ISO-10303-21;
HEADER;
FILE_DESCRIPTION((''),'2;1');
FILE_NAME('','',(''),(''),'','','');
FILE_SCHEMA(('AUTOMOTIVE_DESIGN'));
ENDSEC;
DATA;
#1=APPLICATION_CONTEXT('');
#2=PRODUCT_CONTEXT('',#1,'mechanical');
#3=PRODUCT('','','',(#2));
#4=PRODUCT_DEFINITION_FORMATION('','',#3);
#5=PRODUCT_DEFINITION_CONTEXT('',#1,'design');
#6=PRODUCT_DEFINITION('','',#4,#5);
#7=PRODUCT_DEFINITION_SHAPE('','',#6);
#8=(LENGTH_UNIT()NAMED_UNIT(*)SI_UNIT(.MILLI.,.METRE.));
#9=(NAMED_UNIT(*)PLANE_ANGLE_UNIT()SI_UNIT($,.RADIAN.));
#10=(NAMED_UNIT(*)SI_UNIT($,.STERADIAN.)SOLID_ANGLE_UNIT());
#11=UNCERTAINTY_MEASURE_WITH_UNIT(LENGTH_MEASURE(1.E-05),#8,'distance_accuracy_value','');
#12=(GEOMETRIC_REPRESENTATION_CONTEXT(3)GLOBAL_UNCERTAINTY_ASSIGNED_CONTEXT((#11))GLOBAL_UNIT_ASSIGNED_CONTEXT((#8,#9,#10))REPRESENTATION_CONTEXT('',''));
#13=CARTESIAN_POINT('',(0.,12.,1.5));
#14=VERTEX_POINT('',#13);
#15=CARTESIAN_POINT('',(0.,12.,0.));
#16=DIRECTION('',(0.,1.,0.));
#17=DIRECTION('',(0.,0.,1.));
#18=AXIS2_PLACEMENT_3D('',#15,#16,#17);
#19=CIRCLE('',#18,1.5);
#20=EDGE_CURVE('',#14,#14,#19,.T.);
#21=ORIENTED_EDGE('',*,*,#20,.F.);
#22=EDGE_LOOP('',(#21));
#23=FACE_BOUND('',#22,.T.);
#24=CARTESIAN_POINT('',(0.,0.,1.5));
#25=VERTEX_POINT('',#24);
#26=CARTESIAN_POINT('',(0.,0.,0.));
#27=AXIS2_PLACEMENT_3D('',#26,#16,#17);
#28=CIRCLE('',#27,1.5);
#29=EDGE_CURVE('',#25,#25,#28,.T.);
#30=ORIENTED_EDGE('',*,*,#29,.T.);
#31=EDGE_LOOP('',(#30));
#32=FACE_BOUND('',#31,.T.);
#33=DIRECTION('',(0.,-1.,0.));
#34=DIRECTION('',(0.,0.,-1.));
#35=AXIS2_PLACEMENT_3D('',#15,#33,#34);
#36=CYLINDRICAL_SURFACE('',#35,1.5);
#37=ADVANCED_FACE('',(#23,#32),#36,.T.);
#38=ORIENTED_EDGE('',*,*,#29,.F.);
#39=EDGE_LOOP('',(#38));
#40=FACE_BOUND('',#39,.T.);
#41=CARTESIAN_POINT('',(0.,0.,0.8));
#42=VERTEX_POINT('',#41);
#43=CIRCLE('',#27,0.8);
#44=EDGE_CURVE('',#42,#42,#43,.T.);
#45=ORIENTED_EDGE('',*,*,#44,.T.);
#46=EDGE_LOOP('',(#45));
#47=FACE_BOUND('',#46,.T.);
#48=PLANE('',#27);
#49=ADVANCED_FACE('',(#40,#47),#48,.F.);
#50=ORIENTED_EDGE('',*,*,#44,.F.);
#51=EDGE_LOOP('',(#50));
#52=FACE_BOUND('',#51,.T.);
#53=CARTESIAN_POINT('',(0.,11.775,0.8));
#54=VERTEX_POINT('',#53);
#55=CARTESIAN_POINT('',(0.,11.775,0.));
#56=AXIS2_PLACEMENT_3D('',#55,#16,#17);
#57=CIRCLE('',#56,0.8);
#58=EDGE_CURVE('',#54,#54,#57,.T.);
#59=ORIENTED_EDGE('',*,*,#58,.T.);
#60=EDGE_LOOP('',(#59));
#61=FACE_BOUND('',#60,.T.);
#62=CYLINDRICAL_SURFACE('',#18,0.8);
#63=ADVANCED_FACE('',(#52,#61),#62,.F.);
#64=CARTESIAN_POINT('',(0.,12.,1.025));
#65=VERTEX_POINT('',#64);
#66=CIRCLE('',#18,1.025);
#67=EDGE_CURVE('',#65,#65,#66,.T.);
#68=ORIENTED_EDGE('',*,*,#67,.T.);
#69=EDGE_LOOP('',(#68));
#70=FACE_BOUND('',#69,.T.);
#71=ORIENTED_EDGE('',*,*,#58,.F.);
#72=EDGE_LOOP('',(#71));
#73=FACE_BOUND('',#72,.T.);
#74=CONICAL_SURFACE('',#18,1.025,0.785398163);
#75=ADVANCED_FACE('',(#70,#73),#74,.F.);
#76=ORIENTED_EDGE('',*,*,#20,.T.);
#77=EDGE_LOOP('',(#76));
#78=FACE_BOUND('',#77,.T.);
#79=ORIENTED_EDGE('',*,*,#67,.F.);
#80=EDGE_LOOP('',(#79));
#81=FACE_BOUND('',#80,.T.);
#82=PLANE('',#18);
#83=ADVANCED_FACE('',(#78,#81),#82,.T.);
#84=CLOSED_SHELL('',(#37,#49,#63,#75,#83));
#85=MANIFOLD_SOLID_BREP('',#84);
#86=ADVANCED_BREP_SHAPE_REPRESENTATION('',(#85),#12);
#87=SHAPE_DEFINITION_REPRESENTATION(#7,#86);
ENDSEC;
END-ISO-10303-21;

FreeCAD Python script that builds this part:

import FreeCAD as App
import Part
import Sketcher

V = App.Vector

doc = App.newDocument("Part")
params = doc.addObject("Spreadsheet::Sheet", "Params")
for row, (alias, value) in enumerate([
    ("sketch1_diameter", "3 mm"),
    ("pad1_length", "12 mm"),
    ("sketch2_diameter", "1.6 mm"),
    ("hole_diameter", "1.6 mm"),
    ("hole_depth", "16 mm"),
    ("hole_csink_diameter", "2.05 mm"),
], start=1):
    params.set(f"A{row}", alias)
    params.set(f"B{row}", "=" + value)
    params.setAlias(f"B{row}", alias)

body = doc.addObject("PartDesign::Body", "Body")

sketch1 = doc.addObject("Sketcher::SketchObject", "Sketch")
body.addObject(sketch1)
sketch1.AttachmentSupport = (doc.XZ_Plane, [""])
sketch1.MapMode = "FlatFace"
sketch1.addGeometry(Part.Circle(V(0, 0, 0), V(0, 0, 1), 1.5), False)
sketch1.addConstraint(Sketcher.Constraint("Coincident", 0, 3, -1, 1))
sketch1.addConstraint(Sketcher.Constraint("Diameter", 0, 3.0))
sketch1.setExpression("Constraints[1]", "Params.sketch1_diameter")
pad1 = doc.addObject("PartDesign::Pad", "Pad")
body.addObject(pad1)
pad1.Profile = sketch1
pad1.setExpression("Length", "Params.pad1_length")
pad1.Reversed = True

sketch2 = doc.addObject("Sketcher::SketchObject", "Sketch001")
body.addObject(sketch2)
sketch2.AttachmentSupport = (doc.XZ_Plane, [""])
sketch2.MapMode = "FlatFace"
sketch2.AttachmentOffset = App.Placement(V(0, 0, -12), App.Rotation())
sketch2.addGeometry(Part.Circle(V(0, 0, 0), V(0, 0, 1), 0.8), False)
sketch2.addConstraint(Sketcher.Constraint("Coincident", 0, 3, -1, 1))
sketch2.addConstraint(Sketcher.Constraint("Diameter", 0, 1.6))
sketch2.setExpression("Constraints[1]", "Params.sketch2_diameter")
doc.recompute()
hole = doc.addObject("PartDesign::Hole", "Hole")
body.addObject(hole)
hole.Profile = sketch2
hole.ThreadType = "None"
hole.setExpression("Diameter", "Params.hole_diameter")
hole.DepthType = "Dimension"
hole.setExpression("Depth", "Params.hole_depth")
hole.DrillPoint = "Angled"
hole.DrillPointAngle = 118
hole.HoleCutType = "Countersink"
hole.setExpression("HoleCutDiameter", "Params.hole_csink_diameter")
hole.HoleCutCountersinkAngle = 90
hole.Reversed = True

doc.recompute()
